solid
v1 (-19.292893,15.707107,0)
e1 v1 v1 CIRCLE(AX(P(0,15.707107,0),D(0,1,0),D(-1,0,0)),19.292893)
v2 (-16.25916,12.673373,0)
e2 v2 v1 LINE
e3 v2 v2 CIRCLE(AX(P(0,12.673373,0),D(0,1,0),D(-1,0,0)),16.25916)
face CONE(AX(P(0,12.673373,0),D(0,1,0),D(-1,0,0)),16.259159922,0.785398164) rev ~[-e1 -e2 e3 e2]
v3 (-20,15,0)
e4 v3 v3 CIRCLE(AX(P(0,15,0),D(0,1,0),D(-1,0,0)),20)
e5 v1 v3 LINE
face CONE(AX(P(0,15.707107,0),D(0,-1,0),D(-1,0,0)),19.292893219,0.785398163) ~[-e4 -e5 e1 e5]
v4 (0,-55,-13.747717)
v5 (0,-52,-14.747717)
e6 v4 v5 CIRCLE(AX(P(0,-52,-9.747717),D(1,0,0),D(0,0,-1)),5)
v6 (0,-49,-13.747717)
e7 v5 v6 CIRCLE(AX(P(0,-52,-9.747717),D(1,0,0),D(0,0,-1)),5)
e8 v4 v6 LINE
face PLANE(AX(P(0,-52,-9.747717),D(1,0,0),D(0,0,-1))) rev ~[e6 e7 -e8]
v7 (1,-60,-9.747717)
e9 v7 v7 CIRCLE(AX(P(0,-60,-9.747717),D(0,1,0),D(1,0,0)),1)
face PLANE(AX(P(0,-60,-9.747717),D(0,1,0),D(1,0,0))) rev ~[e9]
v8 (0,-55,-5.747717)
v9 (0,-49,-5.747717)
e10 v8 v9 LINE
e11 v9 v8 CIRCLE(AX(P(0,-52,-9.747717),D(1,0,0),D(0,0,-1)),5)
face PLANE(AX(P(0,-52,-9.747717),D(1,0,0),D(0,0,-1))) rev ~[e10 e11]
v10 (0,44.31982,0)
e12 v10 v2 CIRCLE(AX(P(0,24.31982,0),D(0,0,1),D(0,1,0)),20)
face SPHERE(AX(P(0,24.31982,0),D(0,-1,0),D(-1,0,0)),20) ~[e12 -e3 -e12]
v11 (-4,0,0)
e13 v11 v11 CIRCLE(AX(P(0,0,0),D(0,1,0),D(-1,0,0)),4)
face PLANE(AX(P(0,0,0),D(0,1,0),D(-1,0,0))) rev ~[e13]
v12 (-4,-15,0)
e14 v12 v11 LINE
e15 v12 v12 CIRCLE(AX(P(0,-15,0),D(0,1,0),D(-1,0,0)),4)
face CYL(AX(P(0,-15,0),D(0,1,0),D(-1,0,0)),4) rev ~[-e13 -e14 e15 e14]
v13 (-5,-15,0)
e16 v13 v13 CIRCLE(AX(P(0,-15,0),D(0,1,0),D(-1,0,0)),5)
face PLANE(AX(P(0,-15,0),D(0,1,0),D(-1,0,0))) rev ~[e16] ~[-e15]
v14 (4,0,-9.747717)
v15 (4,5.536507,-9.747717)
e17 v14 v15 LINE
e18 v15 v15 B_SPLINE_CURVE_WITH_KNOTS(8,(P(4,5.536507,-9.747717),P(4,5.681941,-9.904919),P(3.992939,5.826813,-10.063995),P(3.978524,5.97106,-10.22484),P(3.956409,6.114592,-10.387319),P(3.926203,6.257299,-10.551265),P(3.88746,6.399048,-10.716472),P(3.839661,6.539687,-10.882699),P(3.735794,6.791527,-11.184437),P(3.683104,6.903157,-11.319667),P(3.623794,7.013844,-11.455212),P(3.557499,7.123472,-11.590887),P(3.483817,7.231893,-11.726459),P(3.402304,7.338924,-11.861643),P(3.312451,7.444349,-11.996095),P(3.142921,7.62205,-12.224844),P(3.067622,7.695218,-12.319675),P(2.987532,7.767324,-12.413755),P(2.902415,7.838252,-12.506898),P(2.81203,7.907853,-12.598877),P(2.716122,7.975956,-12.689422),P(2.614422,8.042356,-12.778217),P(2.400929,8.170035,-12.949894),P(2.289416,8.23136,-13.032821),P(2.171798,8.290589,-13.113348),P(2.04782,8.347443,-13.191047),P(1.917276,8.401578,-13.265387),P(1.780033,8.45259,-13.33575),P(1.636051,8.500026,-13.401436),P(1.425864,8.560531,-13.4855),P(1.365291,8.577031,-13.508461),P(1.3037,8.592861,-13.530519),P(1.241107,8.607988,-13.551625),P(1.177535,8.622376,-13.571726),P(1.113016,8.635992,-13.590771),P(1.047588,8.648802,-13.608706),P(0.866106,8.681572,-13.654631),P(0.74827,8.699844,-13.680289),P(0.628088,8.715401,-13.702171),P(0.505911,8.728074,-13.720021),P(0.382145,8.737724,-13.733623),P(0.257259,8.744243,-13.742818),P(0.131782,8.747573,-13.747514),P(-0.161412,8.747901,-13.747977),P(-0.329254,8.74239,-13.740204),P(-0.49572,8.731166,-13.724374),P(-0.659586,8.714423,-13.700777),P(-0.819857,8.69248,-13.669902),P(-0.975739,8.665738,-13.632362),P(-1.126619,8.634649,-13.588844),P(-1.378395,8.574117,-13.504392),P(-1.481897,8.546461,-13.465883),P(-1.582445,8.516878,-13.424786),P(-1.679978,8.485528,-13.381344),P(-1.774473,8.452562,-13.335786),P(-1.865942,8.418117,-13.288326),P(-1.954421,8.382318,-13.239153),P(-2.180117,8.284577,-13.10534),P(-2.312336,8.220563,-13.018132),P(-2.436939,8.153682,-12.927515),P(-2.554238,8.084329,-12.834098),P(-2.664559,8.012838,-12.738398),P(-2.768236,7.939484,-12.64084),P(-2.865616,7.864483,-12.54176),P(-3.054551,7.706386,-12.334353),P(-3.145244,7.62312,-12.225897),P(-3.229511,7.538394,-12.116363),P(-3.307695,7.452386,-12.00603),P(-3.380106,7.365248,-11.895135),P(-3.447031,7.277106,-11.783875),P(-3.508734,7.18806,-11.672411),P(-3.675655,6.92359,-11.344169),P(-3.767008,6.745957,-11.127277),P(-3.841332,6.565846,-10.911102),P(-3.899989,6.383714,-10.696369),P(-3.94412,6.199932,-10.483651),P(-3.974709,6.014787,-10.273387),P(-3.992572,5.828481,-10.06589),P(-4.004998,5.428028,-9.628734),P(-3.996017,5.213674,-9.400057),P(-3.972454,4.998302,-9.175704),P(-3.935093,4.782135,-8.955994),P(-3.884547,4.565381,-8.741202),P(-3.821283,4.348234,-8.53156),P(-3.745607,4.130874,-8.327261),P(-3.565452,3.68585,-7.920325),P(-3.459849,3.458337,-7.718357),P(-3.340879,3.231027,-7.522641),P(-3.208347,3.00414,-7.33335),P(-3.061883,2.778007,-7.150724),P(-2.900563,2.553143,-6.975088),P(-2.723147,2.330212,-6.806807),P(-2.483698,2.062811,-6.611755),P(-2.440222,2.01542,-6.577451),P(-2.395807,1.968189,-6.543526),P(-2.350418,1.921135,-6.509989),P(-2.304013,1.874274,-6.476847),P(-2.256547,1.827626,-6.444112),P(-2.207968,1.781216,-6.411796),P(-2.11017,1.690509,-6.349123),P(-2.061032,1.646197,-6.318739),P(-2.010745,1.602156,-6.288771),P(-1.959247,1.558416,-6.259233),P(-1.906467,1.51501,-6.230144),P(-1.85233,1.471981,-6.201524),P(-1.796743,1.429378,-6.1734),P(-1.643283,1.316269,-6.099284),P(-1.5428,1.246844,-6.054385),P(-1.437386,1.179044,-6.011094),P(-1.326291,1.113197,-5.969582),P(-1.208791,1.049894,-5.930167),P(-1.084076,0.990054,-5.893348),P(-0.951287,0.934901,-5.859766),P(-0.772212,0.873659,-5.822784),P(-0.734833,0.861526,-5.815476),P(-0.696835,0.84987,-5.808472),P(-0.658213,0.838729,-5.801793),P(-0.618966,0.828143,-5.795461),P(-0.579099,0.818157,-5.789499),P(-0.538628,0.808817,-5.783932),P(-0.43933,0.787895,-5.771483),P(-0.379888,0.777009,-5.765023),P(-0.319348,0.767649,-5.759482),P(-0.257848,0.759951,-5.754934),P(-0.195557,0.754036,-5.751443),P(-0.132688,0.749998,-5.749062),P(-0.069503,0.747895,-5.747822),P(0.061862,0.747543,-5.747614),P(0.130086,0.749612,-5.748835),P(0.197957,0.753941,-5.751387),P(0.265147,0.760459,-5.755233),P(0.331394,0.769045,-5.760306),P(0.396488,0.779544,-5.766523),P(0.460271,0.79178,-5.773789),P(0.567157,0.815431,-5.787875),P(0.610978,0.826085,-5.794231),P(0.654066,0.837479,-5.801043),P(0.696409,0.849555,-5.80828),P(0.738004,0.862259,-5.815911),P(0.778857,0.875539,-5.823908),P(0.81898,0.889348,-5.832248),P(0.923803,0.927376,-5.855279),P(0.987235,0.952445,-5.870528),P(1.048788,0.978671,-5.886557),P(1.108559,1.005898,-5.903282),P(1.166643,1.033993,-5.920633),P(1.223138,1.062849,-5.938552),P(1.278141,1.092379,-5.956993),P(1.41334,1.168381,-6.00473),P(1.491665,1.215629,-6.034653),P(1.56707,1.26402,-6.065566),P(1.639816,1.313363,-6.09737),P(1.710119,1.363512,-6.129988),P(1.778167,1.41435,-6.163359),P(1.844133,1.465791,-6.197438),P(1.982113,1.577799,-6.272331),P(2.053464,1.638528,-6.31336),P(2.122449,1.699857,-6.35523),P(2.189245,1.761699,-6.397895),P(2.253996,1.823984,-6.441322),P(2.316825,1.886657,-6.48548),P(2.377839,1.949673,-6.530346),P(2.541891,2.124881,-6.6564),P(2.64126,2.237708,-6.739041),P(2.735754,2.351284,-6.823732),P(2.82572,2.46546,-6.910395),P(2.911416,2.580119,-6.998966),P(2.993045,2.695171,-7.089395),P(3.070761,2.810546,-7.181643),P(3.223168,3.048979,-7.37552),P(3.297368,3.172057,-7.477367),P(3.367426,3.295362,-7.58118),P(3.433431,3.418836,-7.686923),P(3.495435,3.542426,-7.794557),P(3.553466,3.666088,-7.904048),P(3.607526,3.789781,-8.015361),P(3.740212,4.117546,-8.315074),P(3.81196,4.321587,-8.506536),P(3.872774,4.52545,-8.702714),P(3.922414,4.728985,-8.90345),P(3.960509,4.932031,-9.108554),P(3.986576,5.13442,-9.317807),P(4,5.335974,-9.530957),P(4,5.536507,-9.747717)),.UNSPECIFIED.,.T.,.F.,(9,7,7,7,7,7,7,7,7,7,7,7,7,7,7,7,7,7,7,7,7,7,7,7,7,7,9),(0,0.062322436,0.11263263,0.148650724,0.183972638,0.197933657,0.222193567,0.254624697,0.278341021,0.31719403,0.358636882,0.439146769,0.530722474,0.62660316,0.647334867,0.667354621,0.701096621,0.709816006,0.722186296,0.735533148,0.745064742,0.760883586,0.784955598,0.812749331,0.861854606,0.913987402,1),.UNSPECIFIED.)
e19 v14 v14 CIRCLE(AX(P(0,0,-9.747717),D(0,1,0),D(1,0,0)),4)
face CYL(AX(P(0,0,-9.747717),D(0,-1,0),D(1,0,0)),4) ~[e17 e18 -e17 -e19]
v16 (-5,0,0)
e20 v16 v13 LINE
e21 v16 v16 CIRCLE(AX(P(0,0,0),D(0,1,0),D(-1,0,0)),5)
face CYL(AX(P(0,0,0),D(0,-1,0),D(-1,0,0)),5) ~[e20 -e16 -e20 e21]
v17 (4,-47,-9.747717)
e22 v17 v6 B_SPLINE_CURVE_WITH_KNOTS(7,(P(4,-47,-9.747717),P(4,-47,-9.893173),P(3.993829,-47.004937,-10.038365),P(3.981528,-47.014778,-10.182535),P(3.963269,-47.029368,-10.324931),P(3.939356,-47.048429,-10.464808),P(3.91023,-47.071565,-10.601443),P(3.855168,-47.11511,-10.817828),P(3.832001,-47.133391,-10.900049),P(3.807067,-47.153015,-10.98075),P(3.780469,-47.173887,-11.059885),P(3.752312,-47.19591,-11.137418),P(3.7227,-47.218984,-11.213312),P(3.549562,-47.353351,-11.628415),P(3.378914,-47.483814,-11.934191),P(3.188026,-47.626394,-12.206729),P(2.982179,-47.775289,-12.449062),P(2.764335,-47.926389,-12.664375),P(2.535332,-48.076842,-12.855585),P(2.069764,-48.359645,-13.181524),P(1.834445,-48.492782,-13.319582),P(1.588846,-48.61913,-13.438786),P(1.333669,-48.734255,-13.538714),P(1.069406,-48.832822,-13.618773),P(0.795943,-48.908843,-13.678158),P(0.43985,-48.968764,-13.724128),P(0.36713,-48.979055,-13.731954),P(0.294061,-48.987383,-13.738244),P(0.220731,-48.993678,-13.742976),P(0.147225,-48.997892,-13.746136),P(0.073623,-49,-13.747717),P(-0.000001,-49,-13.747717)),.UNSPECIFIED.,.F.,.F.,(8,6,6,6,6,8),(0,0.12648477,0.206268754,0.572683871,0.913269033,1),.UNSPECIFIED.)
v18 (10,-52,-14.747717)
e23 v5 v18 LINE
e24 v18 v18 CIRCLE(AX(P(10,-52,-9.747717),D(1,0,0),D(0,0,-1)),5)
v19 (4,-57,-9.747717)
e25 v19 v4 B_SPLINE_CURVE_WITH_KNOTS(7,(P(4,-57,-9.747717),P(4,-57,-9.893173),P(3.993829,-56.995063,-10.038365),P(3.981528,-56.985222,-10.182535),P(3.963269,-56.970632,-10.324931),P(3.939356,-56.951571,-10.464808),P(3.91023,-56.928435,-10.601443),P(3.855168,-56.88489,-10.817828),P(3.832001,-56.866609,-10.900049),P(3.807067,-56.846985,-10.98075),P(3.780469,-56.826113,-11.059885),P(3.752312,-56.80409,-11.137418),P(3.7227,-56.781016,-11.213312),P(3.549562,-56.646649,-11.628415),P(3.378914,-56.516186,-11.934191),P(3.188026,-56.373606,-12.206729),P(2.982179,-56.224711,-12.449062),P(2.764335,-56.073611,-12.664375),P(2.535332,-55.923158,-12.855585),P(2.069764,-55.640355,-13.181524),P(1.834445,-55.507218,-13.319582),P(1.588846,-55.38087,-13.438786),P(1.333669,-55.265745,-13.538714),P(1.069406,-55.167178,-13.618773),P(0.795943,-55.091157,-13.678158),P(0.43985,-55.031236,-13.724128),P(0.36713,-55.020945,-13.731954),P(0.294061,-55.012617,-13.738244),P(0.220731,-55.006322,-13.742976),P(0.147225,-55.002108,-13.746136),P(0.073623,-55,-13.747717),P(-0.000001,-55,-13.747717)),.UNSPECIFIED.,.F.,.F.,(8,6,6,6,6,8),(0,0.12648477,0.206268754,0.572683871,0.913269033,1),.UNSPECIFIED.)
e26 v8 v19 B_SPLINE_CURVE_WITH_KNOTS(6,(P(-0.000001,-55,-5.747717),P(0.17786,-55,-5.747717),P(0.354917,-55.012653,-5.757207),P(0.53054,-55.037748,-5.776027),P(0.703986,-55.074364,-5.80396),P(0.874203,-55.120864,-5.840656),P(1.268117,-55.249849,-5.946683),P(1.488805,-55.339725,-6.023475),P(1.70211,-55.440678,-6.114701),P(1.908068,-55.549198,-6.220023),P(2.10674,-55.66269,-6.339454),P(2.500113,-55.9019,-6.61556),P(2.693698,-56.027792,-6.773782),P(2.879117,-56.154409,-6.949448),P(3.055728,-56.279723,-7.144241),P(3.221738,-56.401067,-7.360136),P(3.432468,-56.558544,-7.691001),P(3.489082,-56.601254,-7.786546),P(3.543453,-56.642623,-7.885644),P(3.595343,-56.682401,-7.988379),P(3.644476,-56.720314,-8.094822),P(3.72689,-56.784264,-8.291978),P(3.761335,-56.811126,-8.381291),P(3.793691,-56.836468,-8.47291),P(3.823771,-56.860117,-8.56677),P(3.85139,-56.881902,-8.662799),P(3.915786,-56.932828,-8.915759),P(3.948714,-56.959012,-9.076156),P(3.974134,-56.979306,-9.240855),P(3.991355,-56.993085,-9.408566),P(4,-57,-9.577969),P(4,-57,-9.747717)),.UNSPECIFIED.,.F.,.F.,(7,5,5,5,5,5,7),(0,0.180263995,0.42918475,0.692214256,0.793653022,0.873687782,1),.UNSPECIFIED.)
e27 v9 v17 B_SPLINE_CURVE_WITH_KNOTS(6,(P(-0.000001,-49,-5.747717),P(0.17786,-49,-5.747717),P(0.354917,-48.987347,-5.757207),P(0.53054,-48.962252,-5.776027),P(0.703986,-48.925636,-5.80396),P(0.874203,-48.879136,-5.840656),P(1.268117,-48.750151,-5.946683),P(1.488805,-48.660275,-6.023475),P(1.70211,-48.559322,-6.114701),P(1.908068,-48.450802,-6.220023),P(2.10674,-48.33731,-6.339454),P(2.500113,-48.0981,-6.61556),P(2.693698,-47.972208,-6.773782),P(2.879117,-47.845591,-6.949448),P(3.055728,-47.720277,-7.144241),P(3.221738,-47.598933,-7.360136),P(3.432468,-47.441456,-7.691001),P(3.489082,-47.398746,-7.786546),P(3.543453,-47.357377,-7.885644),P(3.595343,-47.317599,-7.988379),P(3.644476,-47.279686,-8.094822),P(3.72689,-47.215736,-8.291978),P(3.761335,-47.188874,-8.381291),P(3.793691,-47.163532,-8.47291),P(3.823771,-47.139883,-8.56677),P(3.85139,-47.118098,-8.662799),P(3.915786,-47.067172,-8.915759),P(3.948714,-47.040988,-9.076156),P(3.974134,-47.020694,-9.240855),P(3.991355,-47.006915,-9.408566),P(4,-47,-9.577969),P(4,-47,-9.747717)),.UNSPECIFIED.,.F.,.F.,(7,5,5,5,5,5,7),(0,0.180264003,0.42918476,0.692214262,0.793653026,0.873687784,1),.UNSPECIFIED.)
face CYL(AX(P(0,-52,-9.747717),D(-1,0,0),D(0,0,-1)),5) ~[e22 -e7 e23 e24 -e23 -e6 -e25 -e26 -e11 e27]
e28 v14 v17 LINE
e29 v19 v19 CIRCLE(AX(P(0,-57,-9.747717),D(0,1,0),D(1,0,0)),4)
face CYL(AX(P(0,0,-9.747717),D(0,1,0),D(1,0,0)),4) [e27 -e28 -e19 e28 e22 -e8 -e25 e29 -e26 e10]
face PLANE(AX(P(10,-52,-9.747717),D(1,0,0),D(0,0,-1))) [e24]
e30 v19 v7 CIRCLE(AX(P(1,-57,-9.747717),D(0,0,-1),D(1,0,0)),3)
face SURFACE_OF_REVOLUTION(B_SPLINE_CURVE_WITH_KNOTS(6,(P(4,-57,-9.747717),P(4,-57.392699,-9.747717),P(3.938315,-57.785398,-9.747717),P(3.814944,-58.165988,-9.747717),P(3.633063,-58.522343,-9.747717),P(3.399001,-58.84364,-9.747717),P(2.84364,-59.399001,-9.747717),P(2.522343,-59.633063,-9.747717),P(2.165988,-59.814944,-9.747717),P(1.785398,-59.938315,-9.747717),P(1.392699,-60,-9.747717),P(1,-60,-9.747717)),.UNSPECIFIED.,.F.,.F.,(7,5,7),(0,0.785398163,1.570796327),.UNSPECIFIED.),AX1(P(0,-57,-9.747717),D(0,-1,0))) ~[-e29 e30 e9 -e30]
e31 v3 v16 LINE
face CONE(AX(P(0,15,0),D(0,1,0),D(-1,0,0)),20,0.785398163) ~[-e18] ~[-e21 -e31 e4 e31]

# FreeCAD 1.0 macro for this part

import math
import FreeCAD as App
import Part
import Sketcher
from FreeCAD import Vector
Q = App.Units.Quantity


def edges_at(feature, points):
    """Names of the edges that pass closest to the given points."""
    edges = feature.Shape.Edges
    near = lambda p: min(range(len(edges)), key=lambda i: edges[i].distToShape(Part.Vertex(*p))[0])
    return sorted({f"Edge{near(p) + 1}" for p in points})

doc = App.newDocument("Part")
body = doc.addObject("PartDesign::Body", "Body")

sketch1 = doc.addObject("Sketcher::SketchObject", "Sketch")
body.addObject(sketch1)
sketch1.AttachmentSupport = (doc.XY_Plane, [""])
sketch1.MapMode = "FlatFace"
sketch1.addGeometry(Part.LineSegment(Vector(-5, 0, 0), Vector(-5, -15, 0)), False)
sketch1.addGeometry(Part.LineSegment(Vector(-5, -15, 0), Vector(-4, -15, 0)), False)
sketch1.addGeometry(Part.LineSegment(Vector(-4, -15, 0), Vector(-4, 0, 0)), False)
sketch1.addGeometry(Part.LineSegment(Vector(-4, 0, 0), Vector(0, 0, 0)), False)
sketch1.addGeometry(Part.LineSegment(Vector(0, 0, 0), Vector(0, 44.3, 0)), False)
sketch1.addGeometry(Part.ArcOfCircle(Part.Circle(Vector(0, 24.3, 0), Vector(0, 0, 1), 20), math.radians(90), math.radians(216)), False)
sketch1.addGeometry(Part.LineSegment(Vector(-16.3, 12.7, 0), Vector(-19.3, 15.7, 0)), False)
sketch1.addGeometry(Part.LineSegment(Vector(-19.3, 15.7, 0), Vector(-20, 15, 0)), False)
sketch1.addGeometry(Part.LineSegment(Vector(-20, 15, 0), Vector(-5, 0, 0)), False)
sketch1.addConstraint(Sketcher.Constraint("Coincident", 0, 2, 1, 1))
sketch1.addConstraint(Sketcher.Constraint("Coincident", 1, 2, 2, 1))
sketch1.addConstraint(Sketcher.Constraint("Coincident", 2, 2, 3, 1))
sketch1.addConstraint(Sketcher.Constraint("Coincident", 3, 2, 4, 1))
sketch1.addConstraint(Sketcher.Constraint("Coincident", 4, 2, 5, 1))
sketch1.addConstraint(Sketcher.Constraint("Coincident", 5, 2, 6, 1))
sketch1.addConstraint(Sketcher.Constraint("Coincident", 6, 2, 7, 1))
sketch1.addConstraint(Sketcher.Constraint("Coincident", 7, 2, 8, 1))
sketch1.addConstraint(Sketcher.Constraint("Coincident", 8, 2, 0, 1))
sketch1.addConstraint(Sketcher.Constraint("Vertical", 0))
sketch1.addConstraint(Sketcher.Constraint("Horizontal", 1))
sketch1.addConstraint(Sketcher.Constraint("Vertical", 2))
sketch1.addConstraint(Sketcher.Constraint("Horizontal", 3))
sketch1.addConstraint(Sketcher.Constraint("Vertical", 4))
sketch1.addConstraint(Sketcher.Constraint("Coincident", 3, 2, -1, 1))
sketch1.addConstraint(Sketcher.Constraint("PointOnObject", 5, 3, -2))
sketch1.addConstraint(Sketcher.Constraint("PointOnObject", 8, 2, -1))
sketch1.addConstraint(Sketcher.Constraint("Perpendicular", 6, 7))
sketch1.addConstraint(Sketcher.Constraint("Perpendicular", 7, 8))
sketch1.addConstraint(Sketcher.Constraint("Radius", 5, 20.0))
sketch1.addConstraint(Sketcher.Constraint("DistanceX", 1, 1, 1, 2, 1.0))
sketch1.addConstraint(Sketcher.Constraint("DistanceX", 3, 1, 3, 2, 4.0))
sketch1.addConstraint(Sketcher.Constraint("DistanceY", 0, 2, 0, 1, 15.0))
sketch1.addConstraint(Sketcher.Constraint("Angle", 6, Q("135 deg")))
sketch1.addConstraint(Sketcher.Constraint("Distance", 7, 1.0))
sketch1.addConstraint(Sketcher.Constraint("DistanceX", 7, 2, -1, 1, 20.0))
sketch1.addConstraint(Sketcher.Constraint("DistanceY", 4, 1, 4, 2, 44.31982))
revolution = doc.addObject("PartDesign::Revolution", "Revolution")
body.addObject(revolution)
revolution.Profile = sketch1
revolution.ReferenceAxis = (sketch1, ["V_Axis"])
revolution.Angle = 360

sketch2 = doc.addObject("Sketcher::SketchObject", "Sketch001")
body.addObject(sketch2)
sketch2.AttachmentSupport = (doc.XZ_Plane, [""])
sketch2.MapMode = "FlatFace"
sketch2.addGeometry(Part.Circle(Vector(0, -9.7, 0), Vector(0, 0, 1), 4), False)
sketch2.addConstraint(Sketcher.Constraint("PointOnObject", 0, 3, -2))
sketch2.addConstraint(Sketcher.Constraint("Diameter", 0, 8.0))
sketch2.addConstraint(Sketcher.Constraint("DistanceY", 0, 3, -1, 1, 9.747717))
pad1 = doc.addObject("PartDesign::Pad", "Pad")
body.addObject(pad1)
pad1.Profile = sketch2
pad1.Type = "UpToFirst"
pad1.Reversed = True

sketch3 = doc.addObject("Sketcher::SketchObject", "Sketch002")
body.addObject(sketch3)
sketch3.AttachmentSupport = (doc.XZ_Plane, [""])
sketch3.MapMode = "FlatFace"
sketch3.addGeometry(Part.Circle(Vector(0, -9.7, 0), Vector(0, 0, 1), 4), False)
sketch3.addConstraint(Sketcher.Constraint("PointOnObject", 0, 3, -2))
sketch3.addConstraint(Sketcher.Constraint("Diameter", 0, 8.0))
sketch3.addConstraint(Sketcher.Constraint("DistanceY", 0, 3, -1, 1, 9.747717))
pad2 = doc.addObject("PartDesign::Pad", "Pad001")
body.addObject(pad2)
pad2.Profile = sketch3
pad2.Length = 60
doc.recompute()

fillet = doc.addObject("PartDesign::Fillet", "Fillet")
body.addObject(fillet)
fillet.Base = (pad2, edges_at(pad2, [(-4, -60, -9.748)]))
fillet.Radius = 3

sketch4 = doc.addObject("Sketcher::SketchObject", "Sketch003")
body.addObject(sketch4)
sketch4.AttachmentSupport = (doc.YZ_Plane, [""])
sketch4.MapMode = "FlatFace"
sketch4.addGeometry(Part.Circle(Vector(-52, -10, 0), Vector(0, 0, 1), 5), False)
sketch4.addConstraint(Sketcher.Constraint("Diameter", 0, 10.0))
sketch4.addConstraint(Sketcher.Constraint("DistanceX", 0, 3, -1, 1, 52.0))
sketch4.addConstraint(Sketcher.Constraint("DistanceY", 0, 3, -1, 1, 9.747717))
pad3 = doc.addObject("PartDesign::Pad", "Pad002")
body.addObject(pad3)
pad3.Profile = sketch4
pad3.Length = 10

doc.recompute()
